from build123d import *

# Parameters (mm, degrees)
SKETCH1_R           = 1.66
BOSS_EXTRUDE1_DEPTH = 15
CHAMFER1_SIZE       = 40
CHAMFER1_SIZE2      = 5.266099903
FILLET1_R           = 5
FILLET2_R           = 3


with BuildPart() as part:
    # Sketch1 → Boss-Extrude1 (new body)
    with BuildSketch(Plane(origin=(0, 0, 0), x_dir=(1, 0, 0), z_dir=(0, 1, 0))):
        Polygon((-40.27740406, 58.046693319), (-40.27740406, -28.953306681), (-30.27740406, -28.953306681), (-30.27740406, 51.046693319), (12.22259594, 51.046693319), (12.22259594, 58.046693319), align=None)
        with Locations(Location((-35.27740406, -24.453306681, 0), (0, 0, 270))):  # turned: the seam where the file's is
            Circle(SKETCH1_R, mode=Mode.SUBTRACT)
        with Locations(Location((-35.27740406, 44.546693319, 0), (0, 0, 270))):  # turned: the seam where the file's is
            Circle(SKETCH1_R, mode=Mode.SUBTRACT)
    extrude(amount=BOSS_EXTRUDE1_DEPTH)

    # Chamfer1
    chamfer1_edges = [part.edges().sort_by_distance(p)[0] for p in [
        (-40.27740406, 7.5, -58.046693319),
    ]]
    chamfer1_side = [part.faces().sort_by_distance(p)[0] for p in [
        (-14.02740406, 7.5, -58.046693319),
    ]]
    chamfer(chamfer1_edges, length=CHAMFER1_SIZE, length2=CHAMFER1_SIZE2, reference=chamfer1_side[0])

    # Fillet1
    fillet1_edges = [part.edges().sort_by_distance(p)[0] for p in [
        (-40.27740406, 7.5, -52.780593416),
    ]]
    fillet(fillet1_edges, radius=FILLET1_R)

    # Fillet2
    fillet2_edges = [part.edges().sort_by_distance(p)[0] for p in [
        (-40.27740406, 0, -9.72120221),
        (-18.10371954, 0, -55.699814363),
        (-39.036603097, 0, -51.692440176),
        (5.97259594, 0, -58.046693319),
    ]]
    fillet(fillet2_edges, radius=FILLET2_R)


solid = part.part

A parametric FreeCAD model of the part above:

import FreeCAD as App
import Part
import Sketcher
from FreeCAD import Vector


def edges_at(feature, points):
    """Names of the edges that pass closest to the given points."""
    edges = feature.Shape.Edges
    near = lambda p: min(range(len(edges)), key=lambda i: edges[i].distToShape(Part.Vertex(*p))[0])
    return sorted({f"Edge{near(p) + 1}" for p in points})


def add_polygon(sketch, points):
    """Adds a closed chain of lines whose ends are joined by coincident constraints."""
    first, n = sketch.GeometryCount, len(points)
    for a, b in zip(points, points[1:] + points[:1]):
        sketch.addGeometry(Part.LineSegment(App.Vector(*a, 0), App.Vector(*b, 0)), False)
    for i in range(n):
        sketch.addConstraint(Sketcher.Constraint("Coincident", first + i, 2, first + (i + 1) % n, 1))

doc = App.newDocument("Part")
params = doc.addObject("Spreadsheet::Sheet", "Params")
for row, (alias, value) in enumerate([
    ("sketch1_diameter", "3.32 mm"),
    ("sketch1_width", "10 mm"),
    ("sketch1_height", "87 mm"),
    ("sketch1_height2", "80 mm"),
    ("sketch1_width2", "42.5 mm"),
    ("pad1_length", "15 mm"),
    ("chamfer_size", "40 mm"),
    ("chamfer_size2", "5.2661 mm"),
    ("fillet_radius", "5 mm"),
    ("fillet2_radius", "3 mm"),
], start=1):
    params.set(f"A{row}", alias)
    params.set(f"B{row}", "=" + value)
    params.setAlias(f"B{row}", alias)

body = doc.addObject("PartDesign::Body", "Body")

# Sketch on XZ plane
sketch1 = body.newObject("Sketcher::SketchObject", "Sketch")
sketch1.AttachmentSupport = (doc.getObject("XZ_Plane"), [""])
sketch1.MapMode = "FlatFace"
add_polygon(sketch1, [(-40.3, -58), (-40.3, 29), (-30.3, 29), (-30.3, -51), (12.2, -51), (12.2, -58)])  # lines 0-5
sketch1.addGeometry(Part.Circle(Vector(-35.3, 24.5, 0), Vector(0, 0, 1), 1.7), False)  # 6
sketch1.addGeometry(Part.Circle(Vector(-35.3, -44.5, 0), Vector(0, 0, 1), 1.7), False)  # 7
sketch1.addConstraint([
    Sketcher.Constraint("Vertical", 0),
    Sketcher.Constraint("Horizontal", 1),
    Sketcher.Constraint("Vertical", 2),
    Sketcher.Constraint("Horizontal", 3),
    Sketcher.Constraint("Vertical", 4),
    Sketcher.Constraint("Horizontal", 5),
    Sketcher.Constraint("Equal", 6, 7),
    Sketcher.Constraint("Vertical", 6, 3, 7, 3),
    Sketcher.Constraint("Diameter", 6, 3.32),
    Sketcher.Constraint("DistanceX", 1, 1, 1, 2, 10.0),
    Sketcher.Constraint("DistanceY", 0, 1, 0, 2, 87.0),
    Sketcher.Constraint("DistanceY", 2, 2, 2, 1, 80.0),
    Sketcher.Constraint("DistanceX", 3, 1, 3, 2, 42.5),
    Sketcher.Constraint("DistanceY", 7, 3, 6, 3, 69.0),
    Sketcher.Constraint("DistanceX", 0, 2, 6, 3, 5.0),
    Sketcher.Constraint("DistanceY", 6, 3, 0, 2, 4.5),
    Sketcher.Constraint("DistanceX", 6, 3, -1, 1, 35.277404),
    Sketcher.Constraint("DistanceY", -1, 1, 6, 3, 24.453307),
])
sketch1.setExpression("Constraints[14]", "Params.sketch1_diameter")
sketch1.setExpression("Constraints[15]", "Params.sketch1_width")
sketch1.setExpression("Constraints[16]", "Params.sketch1_height")
sketch1.setExpression("Constraints[17]", "Params.sketch1_height2")
sketch1.setExpression("Constraints[18]", "Params.sketch1_width2")
pad1 = body.newObject("PartDesign::Pad", "Pad")
pad1.Profile = sketch1
pad1.setExpression("Length", "Params.pad1_length")
pad1.Reversed = True
doc.recompute()

chamfer = body.newObject("PartDesign::Chamfer", "Chamfer")
chamfer.Base = (pad1, edges_at(pad1, [(-40.277, 7.5, -58.047)]))
chamfer.ChamferType = "Two distances"
chamfer.setExpression("Size", "Params.chamfer_size")
chamfer.setExpression("Size2", "Params.chamfer_size2")
chamfer.FlipDirection = True
doc.recompute()

fillet = body.newObject("PartDesign::Fillet", "Fillet")
fillet.Base = (chamfer, edges_at(chamfer, [(-40.277, 7.5, -52.781)]))
fillet.setExpression("Radius", "Params.fillet_radius")
doc.recompute()

fillet2 = body.newObject("PartDesign::Fillet", "Fillet001")
fillet2.Base = (fillet, edges_at(fillet, [
    (-40.277, 0, -9.721),
    (-18.104, 0, -55.7),
    (-39.037, 0, -51.692),
    (5.973, 0, -58.047),
]))
fillet2.setExpression("Radius", "Params.fillet2_radius")

doc.recompute()
